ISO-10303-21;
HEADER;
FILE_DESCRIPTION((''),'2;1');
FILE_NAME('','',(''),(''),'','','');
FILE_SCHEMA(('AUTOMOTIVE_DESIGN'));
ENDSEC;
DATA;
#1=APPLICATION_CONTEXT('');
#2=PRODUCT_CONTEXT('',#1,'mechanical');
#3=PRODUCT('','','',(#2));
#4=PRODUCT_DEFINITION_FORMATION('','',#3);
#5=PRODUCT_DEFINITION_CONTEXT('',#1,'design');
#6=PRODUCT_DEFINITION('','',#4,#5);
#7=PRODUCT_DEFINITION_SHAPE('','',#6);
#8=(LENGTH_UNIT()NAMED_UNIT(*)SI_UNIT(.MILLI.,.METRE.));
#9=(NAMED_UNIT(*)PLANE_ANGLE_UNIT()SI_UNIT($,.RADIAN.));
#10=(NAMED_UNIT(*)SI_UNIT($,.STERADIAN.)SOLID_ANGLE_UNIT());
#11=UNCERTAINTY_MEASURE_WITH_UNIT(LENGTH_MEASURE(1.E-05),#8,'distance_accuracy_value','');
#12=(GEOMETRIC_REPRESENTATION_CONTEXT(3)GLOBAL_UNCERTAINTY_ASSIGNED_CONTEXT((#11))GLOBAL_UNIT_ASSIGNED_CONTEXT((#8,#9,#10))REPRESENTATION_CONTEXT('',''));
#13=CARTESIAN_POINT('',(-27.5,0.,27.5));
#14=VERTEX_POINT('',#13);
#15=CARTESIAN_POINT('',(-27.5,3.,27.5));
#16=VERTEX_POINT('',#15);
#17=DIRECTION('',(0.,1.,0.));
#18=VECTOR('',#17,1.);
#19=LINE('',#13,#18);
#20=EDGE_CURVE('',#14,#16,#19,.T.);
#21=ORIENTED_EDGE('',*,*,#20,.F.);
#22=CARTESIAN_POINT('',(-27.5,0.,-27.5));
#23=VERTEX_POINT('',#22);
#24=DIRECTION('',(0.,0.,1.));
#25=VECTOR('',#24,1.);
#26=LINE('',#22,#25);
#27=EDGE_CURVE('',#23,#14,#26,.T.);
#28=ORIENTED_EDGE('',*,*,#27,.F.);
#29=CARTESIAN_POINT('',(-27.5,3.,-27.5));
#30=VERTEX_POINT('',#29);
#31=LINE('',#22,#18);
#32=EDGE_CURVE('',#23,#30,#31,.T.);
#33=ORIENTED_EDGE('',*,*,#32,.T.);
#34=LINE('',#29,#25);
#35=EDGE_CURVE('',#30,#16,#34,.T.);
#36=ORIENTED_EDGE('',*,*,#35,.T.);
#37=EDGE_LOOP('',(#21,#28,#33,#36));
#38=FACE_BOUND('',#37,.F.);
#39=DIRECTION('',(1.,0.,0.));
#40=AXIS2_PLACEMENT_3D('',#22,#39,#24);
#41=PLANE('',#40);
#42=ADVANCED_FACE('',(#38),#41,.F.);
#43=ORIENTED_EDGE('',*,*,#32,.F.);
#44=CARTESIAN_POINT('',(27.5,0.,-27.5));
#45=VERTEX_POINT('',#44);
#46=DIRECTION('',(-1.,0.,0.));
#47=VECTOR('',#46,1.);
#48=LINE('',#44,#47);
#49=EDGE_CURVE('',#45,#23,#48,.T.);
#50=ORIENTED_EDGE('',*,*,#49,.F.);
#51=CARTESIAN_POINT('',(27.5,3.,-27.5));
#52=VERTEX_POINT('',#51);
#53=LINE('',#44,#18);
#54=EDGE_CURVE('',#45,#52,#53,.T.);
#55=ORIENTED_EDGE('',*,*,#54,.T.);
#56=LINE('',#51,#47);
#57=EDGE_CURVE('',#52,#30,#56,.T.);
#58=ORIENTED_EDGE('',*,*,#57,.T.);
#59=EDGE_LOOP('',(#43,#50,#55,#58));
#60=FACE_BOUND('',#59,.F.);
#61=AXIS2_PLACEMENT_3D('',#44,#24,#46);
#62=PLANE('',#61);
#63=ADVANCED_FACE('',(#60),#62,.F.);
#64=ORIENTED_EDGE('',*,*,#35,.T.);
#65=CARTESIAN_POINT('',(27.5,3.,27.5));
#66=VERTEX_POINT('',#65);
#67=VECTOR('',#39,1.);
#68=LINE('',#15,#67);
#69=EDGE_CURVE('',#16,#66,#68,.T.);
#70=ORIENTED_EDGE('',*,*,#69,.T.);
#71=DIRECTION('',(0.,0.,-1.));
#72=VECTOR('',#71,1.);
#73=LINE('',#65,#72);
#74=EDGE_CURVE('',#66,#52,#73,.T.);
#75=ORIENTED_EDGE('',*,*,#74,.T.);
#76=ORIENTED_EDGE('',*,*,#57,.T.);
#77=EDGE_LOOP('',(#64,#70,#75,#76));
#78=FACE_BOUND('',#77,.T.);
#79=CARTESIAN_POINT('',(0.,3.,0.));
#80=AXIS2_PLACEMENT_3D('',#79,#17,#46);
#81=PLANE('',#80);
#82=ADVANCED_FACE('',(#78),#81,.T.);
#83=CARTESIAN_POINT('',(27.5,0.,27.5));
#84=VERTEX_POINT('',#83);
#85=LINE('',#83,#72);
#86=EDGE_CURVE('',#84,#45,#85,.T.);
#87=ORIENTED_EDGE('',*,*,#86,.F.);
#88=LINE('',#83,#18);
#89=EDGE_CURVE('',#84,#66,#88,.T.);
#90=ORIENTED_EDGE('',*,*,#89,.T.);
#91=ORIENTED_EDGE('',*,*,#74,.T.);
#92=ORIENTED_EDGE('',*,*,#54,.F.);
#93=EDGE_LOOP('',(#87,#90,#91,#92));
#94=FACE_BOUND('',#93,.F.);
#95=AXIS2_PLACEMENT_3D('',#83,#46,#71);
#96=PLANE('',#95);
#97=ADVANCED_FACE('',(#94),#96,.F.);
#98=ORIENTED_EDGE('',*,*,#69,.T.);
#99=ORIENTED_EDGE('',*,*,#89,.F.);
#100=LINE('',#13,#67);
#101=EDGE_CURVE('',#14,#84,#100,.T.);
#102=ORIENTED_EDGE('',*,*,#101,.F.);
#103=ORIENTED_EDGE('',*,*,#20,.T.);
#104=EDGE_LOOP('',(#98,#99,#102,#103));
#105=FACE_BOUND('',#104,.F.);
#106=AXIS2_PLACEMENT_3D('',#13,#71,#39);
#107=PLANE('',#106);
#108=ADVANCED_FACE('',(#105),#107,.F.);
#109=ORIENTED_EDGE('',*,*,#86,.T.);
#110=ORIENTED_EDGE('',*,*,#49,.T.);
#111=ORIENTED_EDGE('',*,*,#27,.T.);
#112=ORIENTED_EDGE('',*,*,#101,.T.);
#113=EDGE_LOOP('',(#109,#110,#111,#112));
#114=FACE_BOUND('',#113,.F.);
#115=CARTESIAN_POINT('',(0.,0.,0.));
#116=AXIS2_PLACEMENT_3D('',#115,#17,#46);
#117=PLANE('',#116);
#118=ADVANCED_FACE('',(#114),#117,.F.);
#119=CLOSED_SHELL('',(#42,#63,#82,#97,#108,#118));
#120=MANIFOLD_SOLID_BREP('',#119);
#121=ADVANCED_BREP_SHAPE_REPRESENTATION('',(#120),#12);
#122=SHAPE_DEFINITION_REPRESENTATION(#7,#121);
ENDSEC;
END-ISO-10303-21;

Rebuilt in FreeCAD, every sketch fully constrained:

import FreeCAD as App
import Part
import Sketcher

V = App.Vector
Q = App.Units.Quantity


def add_polygon(sketch, points):
    """Adds a closed chain of lines whose ends are joined by coincident constraints."""
    first, n = sketch.GeometryCount, len(points)
    for a, b in zip(points, points[1:] + points[:1]):
        sketch.addGeometry(Part.LineSegment(App.Vector(*a, 0), App.Vector(*b, 0)), False)
    for i in range(n):
        sketch.addConstraint(Sketcher.Constraint("Coincident", first + i, 2, first + (i + 1) % n, 1))

doc = App.newDocument("Part")
params = doc.addObject("Spreadsheet::Sheet", "Params")
for row, (alias, value) in enumerate([
    ("sketch1_width", "55 mm"),
    ("pad1_length", "3 mm"),
], start=1):
    params.set(f"A{row}", alias)
    params.set(f"B{row}", "=" + value)
    params.setAlias(f"B{row}", alias)

body = doc.addObject("PartDesign::Body", "Body")

# Sketch on XZ plane
sketch1 = body.newObject("Sketcher::SketchObject", "Sketch")
sketch1.AttachmentSupport = (doc.getObject("XZ_Plane"), [""])
sketch1.MapMode = "FlatFace"
add_polygon(sketch1, [(-28, -28), (-28, 28), (28, 28), (28, -28)])  # lines 0-3
sketch1.addConstraint(Sketcher.Constraint("Vertical", 0))
sketch1.addConstraint(Sketcher.Constraint("Horizontal", 1))
sketch1.addConstraint(Sketcher.Constraint("Vertical", 2))
sketch1.addConstraint(Sketcher.Constraint("Horizontal", 3))
sketch1.addConstraint(Sketcher.Constraint("Symmetric", 0, 2, 2, 2, -1, 1))
sketch1.addConstraint(Sketcher.Constraint("Equal", 3, 0))
sketch1.addConstraint(Sketcher.Constraint("DistanceX", 1, 1, 1, 2, Q("55 mm")))
sketch1.setExpression("Constraints[10]", "Params.sketch1_width")
pad1 = body.newObject("PartDesign::Pad", "Pad")
pad1.Profile = sketch1
pad1.setExpression("Length", "Params.pad1_length")
pad1.Reversed = True

doc.recompute()
